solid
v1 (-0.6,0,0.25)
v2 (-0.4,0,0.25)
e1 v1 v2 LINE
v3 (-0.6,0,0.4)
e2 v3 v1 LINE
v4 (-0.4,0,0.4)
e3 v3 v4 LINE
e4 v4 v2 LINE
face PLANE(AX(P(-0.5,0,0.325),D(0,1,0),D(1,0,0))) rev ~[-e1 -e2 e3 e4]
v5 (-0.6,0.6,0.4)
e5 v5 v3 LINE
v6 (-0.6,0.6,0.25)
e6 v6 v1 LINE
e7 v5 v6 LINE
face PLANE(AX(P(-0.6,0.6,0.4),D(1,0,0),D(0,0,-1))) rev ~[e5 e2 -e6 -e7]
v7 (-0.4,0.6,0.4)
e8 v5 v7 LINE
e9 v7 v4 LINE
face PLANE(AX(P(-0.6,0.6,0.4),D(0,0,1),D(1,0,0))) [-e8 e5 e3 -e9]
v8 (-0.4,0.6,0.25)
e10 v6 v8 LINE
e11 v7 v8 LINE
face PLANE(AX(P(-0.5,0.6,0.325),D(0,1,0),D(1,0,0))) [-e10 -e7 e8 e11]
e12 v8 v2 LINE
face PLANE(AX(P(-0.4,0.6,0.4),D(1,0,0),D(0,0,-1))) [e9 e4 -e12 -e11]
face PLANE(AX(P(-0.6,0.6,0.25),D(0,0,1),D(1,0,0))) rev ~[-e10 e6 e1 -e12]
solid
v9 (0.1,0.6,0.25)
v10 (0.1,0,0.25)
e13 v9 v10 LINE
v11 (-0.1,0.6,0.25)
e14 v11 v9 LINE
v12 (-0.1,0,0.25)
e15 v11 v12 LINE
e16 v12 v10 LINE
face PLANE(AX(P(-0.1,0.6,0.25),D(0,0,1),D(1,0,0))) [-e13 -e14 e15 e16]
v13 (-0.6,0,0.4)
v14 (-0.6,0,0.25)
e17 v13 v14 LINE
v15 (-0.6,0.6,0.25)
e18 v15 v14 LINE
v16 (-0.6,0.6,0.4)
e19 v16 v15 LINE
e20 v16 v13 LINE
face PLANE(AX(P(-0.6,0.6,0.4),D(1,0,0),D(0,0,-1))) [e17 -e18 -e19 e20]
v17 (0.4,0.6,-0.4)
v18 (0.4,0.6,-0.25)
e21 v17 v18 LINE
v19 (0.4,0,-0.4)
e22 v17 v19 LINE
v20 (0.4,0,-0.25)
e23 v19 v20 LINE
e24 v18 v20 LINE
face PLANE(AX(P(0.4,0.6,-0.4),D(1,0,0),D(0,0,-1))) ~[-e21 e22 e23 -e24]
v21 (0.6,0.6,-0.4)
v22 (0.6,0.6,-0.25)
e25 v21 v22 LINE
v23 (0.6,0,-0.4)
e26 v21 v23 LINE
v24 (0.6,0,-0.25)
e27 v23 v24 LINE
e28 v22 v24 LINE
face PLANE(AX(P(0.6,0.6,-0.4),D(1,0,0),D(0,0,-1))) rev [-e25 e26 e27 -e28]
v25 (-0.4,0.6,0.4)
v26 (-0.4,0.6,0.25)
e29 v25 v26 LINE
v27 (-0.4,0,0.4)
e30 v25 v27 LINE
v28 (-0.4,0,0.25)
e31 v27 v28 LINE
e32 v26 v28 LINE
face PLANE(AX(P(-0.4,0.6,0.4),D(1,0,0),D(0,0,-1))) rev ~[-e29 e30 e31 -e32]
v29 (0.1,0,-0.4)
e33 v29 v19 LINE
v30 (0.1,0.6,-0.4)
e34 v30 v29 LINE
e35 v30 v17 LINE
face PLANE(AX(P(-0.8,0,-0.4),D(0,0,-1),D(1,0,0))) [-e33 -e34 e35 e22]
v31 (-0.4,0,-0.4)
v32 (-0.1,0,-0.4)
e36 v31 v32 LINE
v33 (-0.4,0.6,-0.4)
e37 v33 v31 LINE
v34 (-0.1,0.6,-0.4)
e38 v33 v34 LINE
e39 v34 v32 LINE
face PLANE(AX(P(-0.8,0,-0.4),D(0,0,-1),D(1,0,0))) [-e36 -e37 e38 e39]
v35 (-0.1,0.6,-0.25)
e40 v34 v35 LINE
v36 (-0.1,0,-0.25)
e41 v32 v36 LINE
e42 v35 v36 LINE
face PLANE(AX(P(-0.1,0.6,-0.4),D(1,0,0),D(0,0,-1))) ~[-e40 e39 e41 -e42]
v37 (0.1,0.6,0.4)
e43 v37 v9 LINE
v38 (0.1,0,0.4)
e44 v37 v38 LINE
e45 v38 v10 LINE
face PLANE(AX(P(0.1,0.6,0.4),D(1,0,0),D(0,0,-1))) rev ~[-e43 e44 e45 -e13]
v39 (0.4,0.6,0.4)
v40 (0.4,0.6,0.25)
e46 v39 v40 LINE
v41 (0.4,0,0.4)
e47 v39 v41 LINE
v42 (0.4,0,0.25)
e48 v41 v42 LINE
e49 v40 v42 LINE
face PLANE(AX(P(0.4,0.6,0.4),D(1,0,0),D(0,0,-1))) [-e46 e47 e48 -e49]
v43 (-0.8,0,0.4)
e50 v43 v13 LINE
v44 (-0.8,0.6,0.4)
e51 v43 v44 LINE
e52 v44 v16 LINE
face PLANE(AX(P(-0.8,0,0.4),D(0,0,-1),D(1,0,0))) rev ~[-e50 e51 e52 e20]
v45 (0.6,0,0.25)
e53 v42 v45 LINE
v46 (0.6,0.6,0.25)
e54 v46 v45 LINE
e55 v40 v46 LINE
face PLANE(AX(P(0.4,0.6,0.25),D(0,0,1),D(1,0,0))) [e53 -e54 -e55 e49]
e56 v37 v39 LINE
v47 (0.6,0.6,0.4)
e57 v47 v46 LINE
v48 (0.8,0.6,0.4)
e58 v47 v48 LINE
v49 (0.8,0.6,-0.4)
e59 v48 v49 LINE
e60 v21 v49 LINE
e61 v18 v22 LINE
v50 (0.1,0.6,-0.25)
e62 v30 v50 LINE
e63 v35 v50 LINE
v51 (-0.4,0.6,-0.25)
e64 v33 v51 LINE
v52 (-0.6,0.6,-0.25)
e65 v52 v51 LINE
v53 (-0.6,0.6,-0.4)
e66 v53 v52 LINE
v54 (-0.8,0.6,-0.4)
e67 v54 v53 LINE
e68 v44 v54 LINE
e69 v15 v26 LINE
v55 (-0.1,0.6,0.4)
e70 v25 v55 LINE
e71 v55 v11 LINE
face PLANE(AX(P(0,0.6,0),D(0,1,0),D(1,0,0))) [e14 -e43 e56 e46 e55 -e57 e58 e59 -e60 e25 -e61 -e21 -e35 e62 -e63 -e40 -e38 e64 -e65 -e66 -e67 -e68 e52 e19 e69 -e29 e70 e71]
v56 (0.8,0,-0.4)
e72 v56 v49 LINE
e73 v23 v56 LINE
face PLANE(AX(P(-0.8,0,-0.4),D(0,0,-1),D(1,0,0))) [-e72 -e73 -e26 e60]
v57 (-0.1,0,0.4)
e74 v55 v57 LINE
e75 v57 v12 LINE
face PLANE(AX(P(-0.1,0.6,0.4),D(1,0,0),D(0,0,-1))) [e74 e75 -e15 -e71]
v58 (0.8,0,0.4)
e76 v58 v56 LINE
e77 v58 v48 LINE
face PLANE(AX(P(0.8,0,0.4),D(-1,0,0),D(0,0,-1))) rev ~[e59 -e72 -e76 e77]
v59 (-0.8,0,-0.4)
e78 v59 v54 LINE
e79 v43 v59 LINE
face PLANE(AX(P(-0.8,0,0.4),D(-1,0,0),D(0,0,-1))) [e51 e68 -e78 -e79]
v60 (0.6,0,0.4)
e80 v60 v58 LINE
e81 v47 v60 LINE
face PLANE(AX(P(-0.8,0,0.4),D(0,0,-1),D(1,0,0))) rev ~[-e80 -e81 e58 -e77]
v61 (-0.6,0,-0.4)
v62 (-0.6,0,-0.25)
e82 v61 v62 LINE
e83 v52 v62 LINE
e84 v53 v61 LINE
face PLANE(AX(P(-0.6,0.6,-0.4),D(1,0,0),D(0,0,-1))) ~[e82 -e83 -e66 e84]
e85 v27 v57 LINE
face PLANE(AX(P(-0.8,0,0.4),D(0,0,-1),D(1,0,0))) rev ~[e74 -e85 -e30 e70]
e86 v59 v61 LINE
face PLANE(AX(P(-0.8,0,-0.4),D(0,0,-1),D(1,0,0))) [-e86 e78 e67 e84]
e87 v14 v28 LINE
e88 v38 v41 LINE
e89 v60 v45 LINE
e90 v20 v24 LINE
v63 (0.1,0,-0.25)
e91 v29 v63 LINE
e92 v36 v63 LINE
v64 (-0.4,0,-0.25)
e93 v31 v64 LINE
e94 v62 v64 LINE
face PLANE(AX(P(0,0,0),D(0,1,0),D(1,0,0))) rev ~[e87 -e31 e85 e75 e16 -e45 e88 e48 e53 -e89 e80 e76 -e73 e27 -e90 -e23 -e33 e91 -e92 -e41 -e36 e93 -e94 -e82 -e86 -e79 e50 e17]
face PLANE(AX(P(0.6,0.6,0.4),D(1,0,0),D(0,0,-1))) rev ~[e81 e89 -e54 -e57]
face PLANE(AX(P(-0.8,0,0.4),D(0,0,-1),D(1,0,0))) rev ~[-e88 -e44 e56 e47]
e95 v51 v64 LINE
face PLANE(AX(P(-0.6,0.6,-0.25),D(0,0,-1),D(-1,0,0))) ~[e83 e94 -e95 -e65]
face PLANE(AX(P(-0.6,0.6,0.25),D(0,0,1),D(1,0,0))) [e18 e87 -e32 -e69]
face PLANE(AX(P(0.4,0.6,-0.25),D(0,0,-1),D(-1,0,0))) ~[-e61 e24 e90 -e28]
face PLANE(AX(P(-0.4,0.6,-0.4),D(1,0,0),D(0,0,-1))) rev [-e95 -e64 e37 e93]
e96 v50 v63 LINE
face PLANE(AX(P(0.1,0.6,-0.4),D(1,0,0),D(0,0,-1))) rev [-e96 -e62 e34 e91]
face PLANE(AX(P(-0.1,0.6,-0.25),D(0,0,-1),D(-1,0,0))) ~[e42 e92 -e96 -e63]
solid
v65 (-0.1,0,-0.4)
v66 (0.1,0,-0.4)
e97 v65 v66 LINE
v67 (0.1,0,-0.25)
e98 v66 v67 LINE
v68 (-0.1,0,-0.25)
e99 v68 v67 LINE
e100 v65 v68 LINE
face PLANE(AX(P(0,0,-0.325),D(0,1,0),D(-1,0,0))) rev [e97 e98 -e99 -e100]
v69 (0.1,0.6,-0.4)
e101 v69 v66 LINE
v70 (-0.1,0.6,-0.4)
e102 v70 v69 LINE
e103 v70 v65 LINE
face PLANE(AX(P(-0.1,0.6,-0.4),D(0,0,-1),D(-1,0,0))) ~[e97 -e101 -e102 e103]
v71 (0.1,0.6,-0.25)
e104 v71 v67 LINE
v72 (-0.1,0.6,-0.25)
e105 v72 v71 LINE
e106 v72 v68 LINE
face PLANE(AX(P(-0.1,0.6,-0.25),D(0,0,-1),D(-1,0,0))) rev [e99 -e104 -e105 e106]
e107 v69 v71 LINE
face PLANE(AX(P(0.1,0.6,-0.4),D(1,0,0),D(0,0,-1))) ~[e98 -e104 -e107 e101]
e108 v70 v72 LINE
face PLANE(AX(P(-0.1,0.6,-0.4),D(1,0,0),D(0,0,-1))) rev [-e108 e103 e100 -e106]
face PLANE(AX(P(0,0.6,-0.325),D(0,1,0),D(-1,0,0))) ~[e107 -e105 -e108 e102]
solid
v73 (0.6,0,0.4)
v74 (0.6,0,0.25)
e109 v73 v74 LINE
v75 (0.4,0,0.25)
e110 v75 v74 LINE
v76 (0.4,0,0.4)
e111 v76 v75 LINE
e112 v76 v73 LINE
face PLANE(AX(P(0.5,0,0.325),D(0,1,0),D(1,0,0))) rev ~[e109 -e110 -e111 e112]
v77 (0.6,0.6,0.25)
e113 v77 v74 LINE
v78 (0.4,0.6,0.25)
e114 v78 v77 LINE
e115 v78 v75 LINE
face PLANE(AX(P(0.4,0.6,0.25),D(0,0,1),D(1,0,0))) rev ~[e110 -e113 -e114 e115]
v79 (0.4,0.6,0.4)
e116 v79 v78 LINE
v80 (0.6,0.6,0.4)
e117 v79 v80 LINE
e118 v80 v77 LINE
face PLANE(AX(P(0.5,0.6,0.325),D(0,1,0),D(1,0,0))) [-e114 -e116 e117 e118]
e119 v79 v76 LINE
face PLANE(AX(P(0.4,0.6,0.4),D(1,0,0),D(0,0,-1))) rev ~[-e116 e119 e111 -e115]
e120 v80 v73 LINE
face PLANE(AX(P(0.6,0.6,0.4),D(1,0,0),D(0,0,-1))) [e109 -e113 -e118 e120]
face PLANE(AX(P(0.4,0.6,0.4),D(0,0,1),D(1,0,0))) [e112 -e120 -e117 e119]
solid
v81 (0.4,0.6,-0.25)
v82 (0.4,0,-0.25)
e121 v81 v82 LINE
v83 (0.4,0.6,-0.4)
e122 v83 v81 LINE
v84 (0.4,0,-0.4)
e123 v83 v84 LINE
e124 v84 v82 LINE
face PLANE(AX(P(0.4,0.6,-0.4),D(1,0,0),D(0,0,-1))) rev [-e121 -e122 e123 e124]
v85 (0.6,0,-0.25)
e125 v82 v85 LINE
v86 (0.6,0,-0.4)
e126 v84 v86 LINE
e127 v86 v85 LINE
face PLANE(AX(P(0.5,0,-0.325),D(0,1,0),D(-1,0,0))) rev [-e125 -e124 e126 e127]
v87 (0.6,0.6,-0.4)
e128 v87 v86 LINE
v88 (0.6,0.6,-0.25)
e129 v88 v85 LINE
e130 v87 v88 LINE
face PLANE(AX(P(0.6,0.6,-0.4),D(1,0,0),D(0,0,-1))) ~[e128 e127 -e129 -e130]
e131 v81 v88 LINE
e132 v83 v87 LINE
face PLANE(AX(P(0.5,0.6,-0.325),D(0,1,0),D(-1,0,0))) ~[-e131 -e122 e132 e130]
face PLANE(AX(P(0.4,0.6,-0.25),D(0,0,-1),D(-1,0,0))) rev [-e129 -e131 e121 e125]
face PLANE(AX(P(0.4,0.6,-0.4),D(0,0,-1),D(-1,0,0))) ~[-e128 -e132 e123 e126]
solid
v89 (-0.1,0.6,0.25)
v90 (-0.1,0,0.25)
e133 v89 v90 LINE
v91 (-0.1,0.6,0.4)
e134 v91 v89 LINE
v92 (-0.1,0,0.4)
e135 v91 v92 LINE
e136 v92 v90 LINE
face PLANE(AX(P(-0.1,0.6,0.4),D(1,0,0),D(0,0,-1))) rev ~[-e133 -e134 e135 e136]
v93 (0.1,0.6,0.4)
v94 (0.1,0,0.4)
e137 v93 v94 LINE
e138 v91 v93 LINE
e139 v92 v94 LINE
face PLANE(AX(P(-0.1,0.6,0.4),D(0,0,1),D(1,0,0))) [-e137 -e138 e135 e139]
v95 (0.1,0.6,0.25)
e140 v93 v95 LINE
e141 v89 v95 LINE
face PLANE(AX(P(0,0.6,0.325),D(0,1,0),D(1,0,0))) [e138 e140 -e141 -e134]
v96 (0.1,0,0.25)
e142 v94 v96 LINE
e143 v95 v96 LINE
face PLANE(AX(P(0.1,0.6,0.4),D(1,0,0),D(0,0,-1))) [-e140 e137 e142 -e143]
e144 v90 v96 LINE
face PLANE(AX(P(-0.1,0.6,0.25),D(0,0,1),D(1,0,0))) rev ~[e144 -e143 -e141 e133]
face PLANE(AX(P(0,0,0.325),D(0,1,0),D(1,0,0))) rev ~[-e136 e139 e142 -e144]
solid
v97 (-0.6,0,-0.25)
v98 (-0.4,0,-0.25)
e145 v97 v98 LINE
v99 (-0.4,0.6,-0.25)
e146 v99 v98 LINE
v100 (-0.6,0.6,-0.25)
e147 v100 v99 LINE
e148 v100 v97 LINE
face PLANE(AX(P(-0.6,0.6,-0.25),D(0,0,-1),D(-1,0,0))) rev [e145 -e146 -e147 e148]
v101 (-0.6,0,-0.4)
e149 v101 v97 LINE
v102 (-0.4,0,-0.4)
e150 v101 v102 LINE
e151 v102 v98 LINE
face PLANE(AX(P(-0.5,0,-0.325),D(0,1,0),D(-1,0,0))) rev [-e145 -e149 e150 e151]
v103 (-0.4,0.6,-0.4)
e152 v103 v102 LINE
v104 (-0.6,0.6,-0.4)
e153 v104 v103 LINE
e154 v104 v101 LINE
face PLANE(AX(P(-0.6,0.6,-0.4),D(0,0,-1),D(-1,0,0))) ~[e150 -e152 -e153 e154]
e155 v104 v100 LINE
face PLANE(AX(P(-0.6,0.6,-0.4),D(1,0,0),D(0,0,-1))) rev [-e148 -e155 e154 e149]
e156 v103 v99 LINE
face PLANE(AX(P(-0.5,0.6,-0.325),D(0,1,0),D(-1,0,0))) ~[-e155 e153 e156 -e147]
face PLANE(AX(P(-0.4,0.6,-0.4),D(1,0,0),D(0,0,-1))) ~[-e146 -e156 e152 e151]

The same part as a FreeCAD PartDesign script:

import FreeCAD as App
import Part
import Sketcher

doc = App.newDocument("Part")
params = doc.addObject("Spreadsheet::Sheet", "Params")
for row, (alias, value) in enumerate([
    ("sketch1_width", "1.6 mm"),
    ("sketch1_height", "0.8 mm"),
    ("pad1_length", "0.6 mm"),
    ("sketch2_width", "0.2 mm"),
    ("sketch2_height", "0.15 mm"),
    ("pocket1_length", "0.6 mm"),
    ("sketch3_width", "0.2 mm"),
    ("sketch3_height", "0.15 mm"),
    ("pad2_length", "0.6 mm"),
    ("sketch4_width", "0.2 mm"),
    ("sketch4_height", "0.15 mm"),
    ("pad3_length", "0.6 mm"),
    ("sketch5_width", "0.2 mm"),
    ("sketch5_height", "0.15 mm"),
    ("pad4_length", "0.6 mm"),
], start=1):
    params.set(f"A{row}", alias)
    params.set(f"B{row}", "=" + value)
    params.setAlias(f"B{row}", alias)

body = doc.addObject("PartDesign::Body", "Body")

sketch1 = body.newObject("Sketcher::SketchObject", "Sketch")
sketch1.AttachmentSupport = (doc.getObject("XZ_Plane"), [""])
sketch1.MapMode = "FlatFace"
sketch1.addGeometry([
    Part.LineSegment(App.Vector(-0.8, -0.4, 0), App.Vector(-0.8, 0.4, 0)),
    Part.LineSegment(App.Vector(-0.8, 0.4, 0), App.Vector(0.8, 0.4, 0)),
    Part.LineSegment(App.Vector(0.8, 0.4, 0), App.Vector(0.8, -0.4, 0)),
    Part.LineSegment(App.Vector(0.8, -0.4, 0), App.Vector(-0.8, -0.4, 0)),
], False)
sketch1.addConstraint([
    Sketcher.Constraint("Coincident", 0, 2, 1, 1),
    Sketcher.Constraint("Coincident", 1, 2, 2, 1),
    Sketcher.Constraint("Coincident", 2, 2, 3, 1),
    Sketcher.Constraint("Coincident", 3, 2, 0, 1),
    Sketcher.Constraint("Vertical", 0),
    Sketcher.Constraint("Horizontal", 1),
    Sketcher.Constraint("Vertical", 2),
    Sketcher.Constraint("Horizontal", 3),
    Sketcher.Constraint("Symmetric", 0, 2, 2, 2, -1, 1),
    Sketcher.Constraint("DistanceX", 1, 1, 1, 2, 1.6),
    Sketcher.Constraint("DistanceY", 0, 1, 0, 2, 0.8),
])
sketch1.setExpression("Constraints[9]", "Params.sketch1_width")
sketch1.setExpression("Constraints[10]", "Params.sketch1_height")
pad1 = body.newObject("PartDesign::Pad", "Pad")
pad1.Profile = sketch1
pad1.setExpression("Length", "Params.pad1_length")
pad1.Reversed = True

sketch2 = body.newObject("Sketcher::SketchObject", "Sketch001")
sketch2.AttachmentSupport = (doc.getObject("XZ_Plane"), [""])
sketch2.MapMode = "FlatFace"
sketch2.AttachmentOffset = App.Placement(App.Vector(0, 0, -0.6), App.Rotation())
sketch2.addGeometry([
    Part.LineSegment(App.Vector(-0.6, 0.25, 0), App.Vector(-0.6, 0.4, 0)),
    Part.LineSegment(App.Vector(-0.6, 0.4, 0), App.Vector(-0.4, 0.4, 0)),
    Part.LineSegment(App.Vector(-0.4, 0.4, 0), App.Vector(-0.4, 0.25, 0)),
    Part.LineSegment(App.Vector(-0.4, 0.25, 0), App.Vector(-0.6, 0.25, 0)),
    Part.LineSegment(App.Vector(0.4, 0.25, 0), App.Vector(0.4, 0.4, 0)),
    Part.LineSegment(App.Vector(0.4, 0.4, 0), App.Vector(0.6, 0.4, 0)),
    Part.LineSegment(App.Vector(0.6, 0.4, 0), App.Vector(0.6, 0.25, 0)),
    Part.LineSegment(App.Vector(0.6, 0.25, 0), App.Vector(0.4, 0.25, 0)),
    Part.LineSegment(App.Vector(-0.1, 0.25, 0), App.Vector(-0.1, 0.4, 0)),
    Part.LineSegment(App.Vector(-0.1, 0.4, 0), App.Vector(0.1, 0.4, 0)),
    Part.LineSegment(App.Vector(0.1, 0.4, 0), App.Vector(0.1, 0.25, 0)),
    Part.LineSegment(App.Vector(0.1, 0.25, 0), App.Vector(-0.1, 0.25, 0)),
], False)
sketch2.addConstraint([
    Sketcher.Constraint("Coincident", 0, 2, 1, 1),
    Sketcher.Constraint("Coincident", 1, 2, 2, 1),
    Sketcher.Constraint("Coincident", 2, 2, 3, 1),
    Sketcher.Constraint("Coincident", 3, 2, 0, 1),
    Sketcher.Constraint("Coincident", 4, 2, 5, 1),
    Sketcher.Constraint("Coincident", 5, 2, 6, 1),
    Sketcher.Constraint("Coincident", 6, 2, 7, 1),
    Sketcher.Constraint("Coincident", 7, 2, 4, 1),
    Sketcher.Constraint("Coincident", 8, 2, 9, 1),
    Sketcher.Constraint("Coincident", 9, 2, 10, 1),
    Sketcher.Constraint("Coincident", 10, 2, 11, 1),
    Sketcher.Constraint("Coincident", 11, 2, 8, 1),
    Sketcher.Constraint("Vertical", 0),
    Sketcher.Constraint("Horizontal", 1),
    Sketcher.Constraint("Vertical", 2),
    Sketcher.Constraint("Horizontal", 3),
    Sketcher.Constraint("Vertical", 4),
    Sketcher.Constraint("Horizontal", 5),
    Sketcher.Constraint("Vertical", 6),
    Sketcher.Constraint("Horizontal", 7),
    Sketcher.Constraint("Vertical", 8),
    Sketcher.Constraint("Horizontal", 9),
    Sketcher.Constraint("Vertical", 10),
    Sketcher.Constraint("Horizontal", 11),
    Sketcher.Constraint("Symmetric", 1, 2, 4, 2, -2),
    Sketcher.Constraint("Symmetric", 3, 2, 6, 2, -2),
    Sketcher.Constraint("Horizontal", 5, 2, 8, 2),
    Sketcher.Constraint("Horizontal", 7, 2, 10, 2),
    Sketcher.Constraint("Equal", 7, 9),
    Sketcher.Constraint("DistanceX", 1, 1, 1, 2, 0.2),
    Sketcher.Constraint("DistanceX", 0, 2, 4, 2, 1.0),
    Sketcher.Constraint("DistanceY", 0, 1, 0, 2, 0.15),
    Sketcher.Constraint("DistanceY", -1, 1, 0, 2, 0.4),
    Sketcher.Constraint("DistanceX", 8, 2, -1, 1, 0.1),
])
sketch2.setExpression("Constraints[29]", "Params.sketch2_width")
sketch2.setExpression("Constraints[31]", "Params.sketch2_height")
pocket1 = body.newObject("PartDesign::Pocket", "Pocket")
pocket1.Profile = sketch2
pocket1.setExpression("Length", "Params.pocket1_length")
pocket1.Reversed = True
doc.recompute()

mirrored = body.newObject("PartDesign::Mirrored", "Mirrored")
mirrored.Originals = [pocket1]
mirrored.MirrorPlane = (doc.getObject("XY_Plane"), [""])
body.Tip = mirrored
body2 = doc.addObject("PartDesign::Body", "Body001")

sketch3 = body2.newObject("Sketcher::SketchObject", "Sketch002")
sketch3.AttachmentSupport = (doc.getObject("XZ_Plane001"), [""])
sketch3.MapMode = "FlatFace"
sketch3.AttachmentOffset = App.Placement(App.Vector(0, 0, -0.6), App.Rotation())
sketch3.addGeometry([
    Part.LineSegment(App.Vector(-0.6, 0.25, 0), App.Vector(-0.6, 0.4, 0)),
    Part.LineSegment(App.Vector(-0.6, 0.4, 0), App.Vector(-0.4, 0.4, 0)),
    Part.LineSegment(App.Vector(-0.4, 0.4, 0), App.Vector(-0.4, 0.25, 0)),
    Part.LineSegment(App.Vector(-0.4, 0.25, 0), App.Vector(-0.6, 0.25, 0)),
], False)
sketch3.addConstraint([
    Sketcher.Constraint("Coincident", 0, 2, 1, 1),
    Sketcher.Constraint("Coincident", 1, 2, 2, 1),
    Sketcher.Constraint("Coincident", 2, 2, 3, 1),
    Sketcher.Constraint("Coincident", 3, 2, 0, 1),
    Sketcher.Constraint("Vertical", 0),
    Sketcher.Constraint("Horizontal", 1),
    Sketcher.Constraint("Vertical", 2),
    Sketcher.Constraint("Horizontal", 3),
    Sketcher.Constraint("DistanceX", 1, 1, 1, 2, 0.2),
    Sketcher.Constraint("DistanceY", 0, 1, 0, 2, 0.15),
    Sketcher.Constraint("DistanceX", 0, 2, -1, 1, 0.6),
    Sketcher.Constraint("DistanceY", -1, 1, 0, 2, 0.4),
])
sketch3.setExpression("Constraints[8]", "Params.sketch3_width")
sketch3.setExpression("Constraints[9]", "Params.sketch3_height")
pad2 = body2.newObject("PartDesign::Pad", "Pad001")
pad2.Profile = sketch3
pad2.setExpression("Length", "Params.pad2_length")
body3 = doc.addObject("PartDesign::Body", "Body002")

sketch4 = body3.newObject("Sketcher::SketchObject", "Sketch003")
sketch4.AttachmentSupport = (doc.getObject("XZ_Plane002"), [""])
sketch4.MapMode = "FlatFace"
sketch4.AttachmentOffset = App.Placement(App.Vector(0, 0, -0.6), App.Rotation())
sketch4.addGeometry([
    Part.LineSegment(App.Vector(0.4, 0.25, 0), App.Vector(0.4, 0.4, 0)),
    Part.LineSegment(App.Vector(0.4, 0.4, 0), App.Vector(0.6, 0.4, 0)),
    Part.LineSegment(App.Vector(0.6, 0.4, 0), App.Vector(0.6, 0.25, 0)),
    Part.LineSegment(App.Vector(0.6, 0.25, 0), App.Vector(0.4, 0.25, 0)),
], False)
sketch4.addConstraint([
    Sketcher.Constraint("Coincident", 0, 2, 1, 1),
    Sketcher.Constraint("Coincident", 1, 2, 2, 1),
    Sketcher.Constraint("Coincident", 2, 2, 3, 1),
    Sketcher.Constraint("Coincident", 3, 2, 0, 1),
    Sketcher.Constraint("Vertical", 0),
    Sketcher.Constraint("Horizontal", 1),
    Sketcher.Constraint("Vertical", 2),
    Sketcher.Constraint("Horizontal", 3),
    Sketcher.Constraint("DistanceX", 1, 1, 1, 2, 0.2),
    Sketcher.Constraint("DistanceY", 0, 1, 0, 2, 0.15),
    Sketcher.Constraint("DistanceX", -1, 1, 0, 2, 0.4),
    Sketcher.Constraint("DistanceY", -1, 1, 0, 2, 0.4),
])
sketch4.setExpression("Constraints[8]", "Params.sketch4_width")
sketch4.setExpression("Constraints[9]", "Params.sketch4_height")
pad3 = body3.newObject("PartDesign::Pad", "Pad002")
pad3.Profile = sketch4
pad3.setExpression("Length", "Params.pad3_length")
body4 = doc.addObject("PartDesign::Body", "Body003")

sketch5 = body4.newObject("Sketcher::SketchObject", "Sketch004")
sketch5.AttachmentSupport = (doc.getObject("XZ_Plane003"), [""])
sketch5.MapMode = "FlatFace"
sketch5.AttachmentOffset = App.Placement(App.Vector(0, 0, -0.6), App.Rotation())
sketch5.addGeometry([
    Part.LineSegment(App.Vector(-0.1, 0.25, 0), App.Vector(-0.1, 0.4, 0)),
    Part.LineSegment(App.Vector(-0.1, 0.4, 0), App.Vector(0.1, 0.4, 0)),
    Part.LineSegment(App.Vector(0.1, 0.4, 0), App.Vector(0.1, 0.25, 0)),
    Part.LineSegment(App.Vector(0.1, 0.25, 0), App.Vector(-0.1, 0.25, 0)),
], False)
sketch5.addConstraint([
    Sketcher.Constraint("Coincident", 0, 2, 1, 1),
    Sketcher.Constraint("Coincident", 1, 2, 2, 1),
    Sketcher.Constraint("Coincident", 2, 2, 3, 1),
    Sketcher.Constraint("Coincident", 3, 2, 0, 1),
    Sketcher.Constraint("Vertical", 0),
    Sketcher.Constraint("Horizontal", 1),
    Sketcher.Constraint("Vertical", 2),
    Sketcher.Constraint("Horizontal", 3),
    Sketcher.Constraint("DistanceX", 1, 1, 1, 2, 0.2),
    Sketcher.Constraint("DistanceY", 0, 1, 0, 2, 0.15),
    Sketcher.Constraint("DistanceX", 0, 2, -1, 1, 0.1),
    Sketcher.Constraint("DistanceY", -1, 1, 0, 2, 0.4),
])
sketch5.setExpression("Constraints[8]", "Params.sketch5_width")
sketch5.setExpression("Constraints[9]", "Params.sketch5_height")
pad4 = body4.newObject("PartDesign::Pad", "Pad003")
pad4.Profile = sketch5
pad4.setExpression("Length", "Params.pad4_length")
body5 = doc.addObject("PartDesign::Body", "Body004")
doc.recompute()

mirroring = doc.addObject("Part::Mirroring", "Mirroring")
mirroring.Source = body2
mirroring.Base = App.Vector(0, 0, 0)
mirroring.Normal = App.Vector(0, 0, 1)
body5.BaseFeature = mirroring
doc.recompute()
body6 = doc.addObject("PartDesign::Body", "Body005")
doc.recompute()

mirroring2 = doc.addObject("Part::Mirroring", "Mirroring001")
mirroring2.Source = body4
mirroring2.Base = App.Vector(0, 0, 0)
mirroring2.Normal = App.Vector(0, 0, 1)
body6.BaseFeature = mirroring2
doc.recompute()
body7 = doc.addObject("PartDesign::Body", "Body006")
doc.recompute()

mirroring3 = doc.addObject("Part::Mirroring", "Mirroring002")
mirroring3.Source = body3
mirroring3.Base = App.Vector(0, 0, 0)
mirroring3.Normal = App.Vector(0, 0, 1)
body7.BaseFeature = mirroring3
doc.recompute()
mirroring.Visibility = False
mirroring2.Visibility = False
mirroring3.Visibility = False

doc.recompute()
